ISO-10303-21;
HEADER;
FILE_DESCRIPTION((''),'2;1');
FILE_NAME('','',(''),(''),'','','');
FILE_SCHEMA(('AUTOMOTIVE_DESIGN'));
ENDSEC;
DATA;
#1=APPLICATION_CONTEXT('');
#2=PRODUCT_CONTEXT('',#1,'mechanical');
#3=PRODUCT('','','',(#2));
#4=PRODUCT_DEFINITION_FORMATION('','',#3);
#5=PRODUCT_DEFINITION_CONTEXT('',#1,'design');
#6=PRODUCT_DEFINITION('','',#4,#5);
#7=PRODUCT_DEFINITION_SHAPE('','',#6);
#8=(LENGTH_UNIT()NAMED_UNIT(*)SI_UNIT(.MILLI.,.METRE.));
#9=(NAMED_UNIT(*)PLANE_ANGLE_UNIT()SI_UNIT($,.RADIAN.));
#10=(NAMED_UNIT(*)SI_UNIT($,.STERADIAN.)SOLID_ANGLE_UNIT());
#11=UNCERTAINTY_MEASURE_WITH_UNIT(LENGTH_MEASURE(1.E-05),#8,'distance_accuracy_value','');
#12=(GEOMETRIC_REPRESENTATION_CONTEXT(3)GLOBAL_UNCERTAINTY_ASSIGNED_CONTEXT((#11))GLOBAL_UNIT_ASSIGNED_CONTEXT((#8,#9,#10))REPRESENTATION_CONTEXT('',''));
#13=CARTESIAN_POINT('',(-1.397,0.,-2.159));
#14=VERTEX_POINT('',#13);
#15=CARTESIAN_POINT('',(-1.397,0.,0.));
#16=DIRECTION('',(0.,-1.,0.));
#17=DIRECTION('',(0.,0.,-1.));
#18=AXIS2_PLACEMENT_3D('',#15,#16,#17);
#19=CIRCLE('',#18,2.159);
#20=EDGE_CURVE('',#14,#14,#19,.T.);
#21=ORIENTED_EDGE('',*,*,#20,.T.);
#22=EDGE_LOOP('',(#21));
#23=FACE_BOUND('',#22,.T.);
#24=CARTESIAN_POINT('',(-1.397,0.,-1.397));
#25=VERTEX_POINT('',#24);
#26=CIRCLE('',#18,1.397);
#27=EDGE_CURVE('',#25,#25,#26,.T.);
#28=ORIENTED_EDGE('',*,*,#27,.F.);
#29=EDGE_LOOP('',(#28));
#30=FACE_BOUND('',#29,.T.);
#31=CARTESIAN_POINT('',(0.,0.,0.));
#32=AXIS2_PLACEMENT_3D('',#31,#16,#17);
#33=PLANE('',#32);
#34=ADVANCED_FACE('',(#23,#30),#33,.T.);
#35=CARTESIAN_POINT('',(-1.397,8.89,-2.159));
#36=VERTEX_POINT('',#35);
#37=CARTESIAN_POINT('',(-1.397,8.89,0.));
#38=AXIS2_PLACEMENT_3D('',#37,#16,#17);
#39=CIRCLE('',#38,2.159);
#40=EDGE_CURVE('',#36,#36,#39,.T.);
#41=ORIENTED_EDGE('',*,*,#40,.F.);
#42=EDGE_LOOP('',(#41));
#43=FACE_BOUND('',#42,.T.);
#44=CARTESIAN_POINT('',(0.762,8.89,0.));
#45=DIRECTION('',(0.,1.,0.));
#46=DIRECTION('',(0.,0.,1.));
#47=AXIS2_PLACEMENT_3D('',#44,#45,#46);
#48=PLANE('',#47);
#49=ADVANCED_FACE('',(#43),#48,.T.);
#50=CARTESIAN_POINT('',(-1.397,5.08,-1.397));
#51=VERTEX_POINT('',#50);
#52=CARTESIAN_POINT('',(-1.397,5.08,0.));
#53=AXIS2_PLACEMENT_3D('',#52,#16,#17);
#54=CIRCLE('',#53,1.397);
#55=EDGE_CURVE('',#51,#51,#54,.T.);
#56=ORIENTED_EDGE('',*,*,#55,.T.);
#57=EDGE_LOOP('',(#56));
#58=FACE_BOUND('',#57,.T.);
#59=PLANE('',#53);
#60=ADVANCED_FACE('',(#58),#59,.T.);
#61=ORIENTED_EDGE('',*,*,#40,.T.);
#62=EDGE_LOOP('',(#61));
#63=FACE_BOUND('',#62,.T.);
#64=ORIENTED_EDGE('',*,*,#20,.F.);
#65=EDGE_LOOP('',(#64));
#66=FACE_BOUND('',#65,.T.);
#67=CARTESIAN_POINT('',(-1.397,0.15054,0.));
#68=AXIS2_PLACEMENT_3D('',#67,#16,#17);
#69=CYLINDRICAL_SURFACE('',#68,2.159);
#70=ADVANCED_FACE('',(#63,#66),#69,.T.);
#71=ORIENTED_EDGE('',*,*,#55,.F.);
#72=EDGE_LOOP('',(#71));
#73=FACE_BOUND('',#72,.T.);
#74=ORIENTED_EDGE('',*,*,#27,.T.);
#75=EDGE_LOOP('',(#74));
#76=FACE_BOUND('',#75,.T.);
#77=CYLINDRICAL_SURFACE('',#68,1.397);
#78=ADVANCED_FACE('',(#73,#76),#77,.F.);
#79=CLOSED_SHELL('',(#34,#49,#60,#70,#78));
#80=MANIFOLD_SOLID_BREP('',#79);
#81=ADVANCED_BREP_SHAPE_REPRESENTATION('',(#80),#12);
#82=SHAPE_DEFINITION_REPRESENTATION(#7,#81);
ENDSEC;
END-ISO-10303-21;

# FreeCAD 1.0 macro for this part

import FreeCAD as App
import Part
import Sketcher
from FreeCAD import Vector
Q = App.Units.Quantity


def add_polygon(sketch, points):
    """Adds a closed chain of lines whose ends are joined by coincident constraints."""
    first, n = sketch.GeometryCount, len(points)
    for a, b in zip(points, points[1:] + points[:1]):
        sketch.addGeometry(Part.LineSegment(App.Vector(*a, 0), App.Vector(*b, 0)), False)
    for i in range(n):
        sketch.addConstraint(Sketcher.Constraint("Coincident", first + i, 2, first + (i + 1) % n, 1))

doc = App.newDocument("Part")
body = doc.addObject("PartDesign::Body", "Body")

# Sketch on XY plane
sketch1 = body.newObject("Sketcher::SketchObject", "Sketch")
sketch1.AttachmentSupport = (doc.getObject("XY_Plane"), [""])
sketch1.MapMode = "FlatFace"
add_polygon(sketch1, [(0, 0), (0.8, 0), (0.8, 8.9), (-1.4, 8.9), (-1.4, 5.1), (0, 5.1)])  # lines 0-5
sketch1.addGeometry(Part.LineSegment(Vector(-1.4, 0, 0), Vector(-1.4, 8.9, 0)), True)  # axis
sketch1.addConstraint(Sketcher.Constraint("Horizontal", 0))
sketch1.addConstraint(Sketcher.Constraint("Vertical", 1))
sketch1.addConstraint(Sketcher.Constraint("Horizontal", 2))
sketch1.addConstraint(Sketcher.Constraint("Vertical", 3))
sketch1.addConstraint(Sketcher.Constraint("Horizontal", 4))
sketch1.addConstraint(Sketcher.Constraint("Vertical", 5))
sketch1.addConstraint(Sketcher.Constraint("Vertical", 6))
sketch1.addConstraint(Sketcher.Constraint("Coincident", 5, 2, -1, 1))
sketch1.addConstraint(Sketcher.Constraint("Coincident", 6, 2, 2, 2))
sketch1.addConstraint(Sketcher.Constraint("PointOnObject", 6, 1, -1))
sketch1.addConstraint(Sketcher.Constraint("DistanceY", 5, 2, 5, 1, Q("0.2 in")))
sketch1.addConstraint(Sketcher.Constraint("DistanceX", 0, 1, 0, 2, Q("0.03 in")))
sketch1.addConstraint(Sketcher.Constraint("DistanceY", 1, 1, 1, 2, Q("0.35 in")))
sketch1.addConstraint(Sketcher.Constraint("DistanceX", 2, 2, 2, 1, Q("0.085 in")))
revolution = body.newObject("PartDesign::Revolution", "Revolution")
revolution.Profile = sketch1
revolution.ReferenceAxis = (sketch1, ["Axis0"])
revolution.Angle = 360

doc.recompute()
